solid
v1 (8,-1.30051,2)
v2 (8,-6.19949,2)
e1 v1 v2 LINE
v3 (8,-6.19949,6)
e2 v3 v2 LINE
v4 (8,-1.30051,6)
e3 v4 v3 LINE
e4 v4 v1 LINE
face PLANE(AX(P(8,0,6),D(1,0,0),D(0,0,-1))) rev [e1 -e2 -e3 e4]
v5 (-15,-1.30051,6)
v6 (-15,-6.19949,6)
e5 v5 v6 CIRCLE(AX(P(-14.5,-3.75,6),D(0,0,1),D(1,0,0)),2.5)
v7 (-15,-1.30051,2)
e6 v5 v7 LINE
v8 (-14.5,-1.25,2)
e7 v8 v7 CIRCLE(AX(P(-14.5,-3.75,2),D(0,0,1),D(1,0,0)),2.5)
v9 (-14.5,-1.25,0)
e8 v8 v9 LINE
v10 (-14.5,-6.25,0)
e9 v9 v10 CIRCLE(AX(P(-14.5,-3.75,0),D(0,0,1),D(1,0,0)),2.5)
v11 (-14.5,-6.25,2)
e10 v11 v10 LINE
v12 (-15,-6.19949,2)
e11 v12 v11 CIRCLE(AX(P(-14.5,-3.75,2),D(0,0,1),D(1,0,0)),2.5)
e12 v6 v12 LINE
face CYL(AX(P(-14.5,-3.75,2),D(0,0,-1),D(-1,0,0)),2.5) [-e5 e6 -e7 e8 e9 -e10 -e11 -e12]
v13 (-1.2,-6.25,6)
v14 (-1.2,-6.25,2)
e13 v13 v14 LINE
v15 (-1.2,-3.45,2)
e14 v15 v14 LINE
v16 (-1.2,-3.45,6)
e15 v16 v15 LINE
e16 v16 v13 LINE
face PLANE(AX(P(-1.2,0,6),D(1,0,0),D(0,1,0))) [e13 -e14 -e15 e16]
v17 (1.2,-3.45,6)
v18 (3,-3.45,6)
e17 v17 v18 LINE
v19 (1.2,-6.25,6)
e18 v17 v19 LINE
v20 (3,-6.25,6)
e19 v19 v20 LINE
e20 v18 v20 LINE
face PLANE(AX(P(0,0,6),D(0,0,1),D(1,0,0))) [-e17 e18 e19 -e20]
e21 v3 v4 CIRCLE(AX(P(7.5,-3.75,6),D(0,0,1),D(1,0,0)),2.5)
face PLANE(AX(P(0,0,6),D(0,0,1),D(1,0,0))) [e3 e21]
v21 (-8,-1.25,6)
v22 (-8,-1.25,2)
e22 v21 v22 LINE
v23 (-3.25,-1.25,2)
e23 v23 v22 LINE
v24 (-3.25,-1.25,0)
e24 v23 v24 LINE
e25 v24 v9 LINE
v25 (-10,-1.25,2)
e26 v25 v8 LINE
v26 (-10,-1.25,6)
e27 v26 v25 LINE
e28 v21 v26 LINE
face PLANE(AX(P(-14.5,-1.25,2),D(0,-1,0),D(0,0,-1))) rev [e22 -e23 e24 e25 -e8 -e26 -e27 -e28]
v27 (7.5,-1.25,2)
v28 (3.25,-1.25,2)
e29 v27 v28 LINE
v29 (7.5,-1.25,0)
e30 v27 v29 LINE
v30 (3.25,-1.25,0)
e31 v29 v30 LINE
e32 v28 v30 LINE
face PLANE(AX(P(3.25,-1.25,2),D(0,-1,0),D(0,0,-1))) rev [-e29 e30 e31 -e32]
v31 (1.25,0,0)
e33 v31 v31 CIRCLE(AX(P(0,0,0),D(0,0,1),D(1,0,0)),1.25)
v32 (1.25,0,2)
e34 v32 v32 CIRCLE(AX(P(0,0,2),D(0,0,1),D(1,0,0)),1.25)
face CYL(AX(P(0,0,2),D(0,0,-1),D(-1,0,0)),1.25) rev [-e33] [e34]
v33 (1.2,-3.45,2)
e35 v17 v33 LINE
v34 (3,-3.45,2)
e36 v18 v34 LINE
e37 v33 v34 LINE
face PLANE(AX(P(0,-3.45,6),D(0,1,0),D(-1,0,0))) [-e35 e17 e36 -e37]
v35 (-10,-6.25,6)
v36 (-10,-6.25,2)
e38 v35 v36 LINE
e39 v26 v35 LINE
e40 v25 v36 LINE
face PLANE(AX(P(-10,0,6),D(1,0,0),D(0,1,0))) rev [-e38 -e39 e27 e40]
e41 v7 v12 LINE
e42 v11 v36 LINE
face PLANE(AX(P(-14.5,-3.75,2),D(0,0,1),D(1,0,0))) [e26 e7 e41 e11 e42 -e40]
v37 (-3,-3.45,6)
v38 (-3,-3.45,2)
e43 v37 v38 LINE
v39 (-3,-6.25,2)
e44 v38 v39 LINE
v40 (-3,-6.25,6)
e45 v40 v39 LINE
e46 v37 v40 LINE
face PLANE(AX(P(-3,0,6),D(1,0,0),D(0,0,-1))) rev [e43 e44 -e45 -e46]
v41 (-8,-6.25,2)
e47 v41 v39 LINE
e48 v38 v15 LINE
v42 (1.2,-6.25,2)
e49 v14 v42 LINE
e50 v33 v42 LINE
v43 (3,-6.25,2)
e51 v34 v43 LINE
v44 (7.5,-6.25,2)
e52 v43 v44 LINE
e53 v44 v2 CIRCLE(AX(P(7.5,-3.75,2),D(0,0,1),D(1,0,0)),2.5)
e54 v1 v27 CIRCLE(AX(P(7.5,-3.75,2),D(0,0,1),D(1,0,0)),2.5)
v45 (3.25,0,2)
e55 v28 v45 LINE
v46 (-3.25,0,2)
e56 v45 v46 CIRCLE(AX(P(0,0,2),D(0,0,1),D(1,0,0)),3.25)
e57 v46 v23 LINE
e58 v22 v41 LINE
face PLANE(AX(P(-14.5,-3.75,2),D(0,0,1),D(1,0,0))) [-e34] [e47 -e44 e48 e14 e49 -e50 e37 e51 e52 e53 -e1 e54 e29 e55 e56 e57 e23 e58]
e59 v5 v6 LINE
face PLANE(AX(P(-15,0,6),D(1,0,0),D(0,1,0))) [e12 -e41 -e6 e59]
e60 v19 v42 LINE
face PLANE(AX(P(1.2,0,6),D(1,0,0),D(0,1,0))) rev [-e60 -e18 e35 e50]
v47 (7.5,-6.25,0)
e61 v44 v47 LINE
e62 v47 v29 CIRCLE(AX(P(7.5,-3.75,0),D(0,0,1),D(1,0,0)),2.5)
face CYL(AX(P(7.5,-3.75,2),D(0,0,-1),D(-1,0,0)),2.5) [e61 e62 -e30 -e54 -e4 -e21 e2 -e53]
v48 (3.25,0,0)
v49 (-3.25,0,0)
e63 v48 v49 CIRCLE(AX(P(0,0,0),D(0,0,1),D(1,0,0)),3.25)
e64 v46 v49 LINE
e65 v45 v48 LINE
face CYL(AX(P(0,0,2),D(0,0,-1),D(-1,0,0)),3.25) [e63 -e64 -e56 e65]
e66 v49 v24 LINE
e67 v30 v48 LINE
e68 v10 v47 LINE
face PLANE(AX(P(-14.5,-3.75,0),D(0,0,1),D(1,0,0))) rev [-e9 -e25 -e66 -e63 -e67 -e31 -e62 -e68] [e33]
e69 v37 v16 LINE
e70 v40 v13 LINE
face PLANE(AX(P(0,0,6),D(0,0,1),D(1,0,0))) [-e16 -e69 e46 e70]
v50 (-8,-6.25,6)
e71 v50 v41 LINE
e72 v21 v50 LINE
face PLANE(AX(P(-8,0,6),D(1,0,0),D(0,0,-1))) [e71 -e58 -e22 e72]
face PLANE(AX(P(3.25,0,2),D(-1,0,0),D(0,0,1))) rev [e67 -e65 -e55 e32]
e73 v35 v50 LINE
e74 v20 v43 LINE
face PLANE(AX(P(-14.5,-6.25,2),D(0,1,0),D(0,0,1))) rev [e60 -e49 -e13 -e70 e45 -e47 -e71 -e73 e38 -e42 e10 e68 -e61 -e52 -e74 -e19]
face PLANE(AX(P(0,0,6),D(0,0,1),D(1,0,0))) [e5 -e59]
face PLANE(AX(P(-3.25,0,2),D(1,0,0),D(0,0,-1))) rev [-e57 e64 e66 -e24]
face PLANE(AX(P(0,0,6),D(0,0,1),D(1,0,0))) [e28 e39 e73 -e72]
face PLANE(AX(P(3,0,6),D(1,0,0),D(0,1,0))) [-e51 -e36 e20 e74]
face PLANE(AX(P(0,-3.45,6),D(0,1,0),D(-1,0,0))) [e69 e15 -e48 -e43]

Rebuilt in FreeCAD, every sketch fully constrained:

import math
import FreeCAD as App
import Part
import Sketcher
from FreeCAD import Vector

doc = App.newDocument("Part")
body = doc.addObject("PartDesign::Body", "Body")

sketch1 = doc.addObject("Sketcher::SketchObject", "Sketch")
body.addObject(sketch1)
sketch1.AttachmentSupport = (doc.XY_Plane, [""])
sketch1.MapMode = "FlatFace"
sketch1.addGeometry([
    Part.LineSegment(Vector(-3.2, -1.2, 0), Vector(-14.5, -1.2, 0)),
    Part.ArcOfCircle(Part.Circle(Vector(-14.5, -3.8, 0), Vector(0, 0, 1), 2.5), math.radians(90), math.radians(270)),
    Part.LineSegment(Vector(-14.5, -6.2, 0), Vector(7.5, -6.2, 0)),
    Part.ArcOfCircle(Part.Circle(Vector(7.5, -3.8, 0), Vector(0, 0, 1), 2.5), math.radians(-90), math.radians(90)),
    Part.LineSegment(Vector(7.5, -1.2, 0), Vector(3.2, -1.2, 0)),
    Part.LineSegment(Vector(3.2, -1.2, 0), Vector(3.2, 0, 0)),
    Part.ArcOfCircle(Part.Circle(Vector(0, 0, 0), Vector(0, 0, 1), 3.2), math.radians(0), math.radians(180)),
    Part.LineSegment(Vector(-3.2, 0, 0), Vector(-3.2, -1.2, 0)),
    Part.Circle(Vector(0, 0, 0), Vector(0, 0, 1), 1.2),
], False)
sketch1.addConstraint([
    Sketcher.Constraint("Tangent", 0, 2, 1, 1),
    Sketcher.Constraint("Tangent", 1, 2, 2, 1),
    Sketcher.Constraint("Tangent", 2, 2, 3, 1),
    Sketcher.Constraint("Tangent", 3, 2, 4, 1),
    Sketcher.Constraint("Coincident", 4, 2, 5, 1),
    Sketcher.Constraint("Tangent", 5, 2, 6, 1),
    Sketcher.Constraint("Tangent", 6, 2, 7, 1),
    Sketcher.Constraint("Coincident", 7, 2, 0, 1),
    Sketcher.Constraint("Horizontal", 0),
    Sketcher.Constraint("Horizontal", 2),
    Sketcher.Constraint("Horizontal", 4),
    Sketcher.Constraint("Vertical", 5),
    Sketcher.Constraint("Vertical", 7),
    Sketcher.Constraint("Coincident", 6, 3, -1, 1),
    Sketcher.Constraint("Coincident", 8, 3, -1, 1),
    Sketcher.Constraint("Equal", 1, 3),
    Sketcher.Constraint("Diameter", 8, 2.5),
    Sketcher.Constraint("Radius", 1, 2.5),
    Sketcher.Constraint("DistanceX", 2, 1, 2, 2, 22.0),
    Sketcher.Constraint("Radius", 6, 3.25),
    Sketcher.Constraint("DistanceX", 0, 2, 0, 1, 11.25),
    Sketcher.Constraint("DistanceY", 5, 1, 5, 2, 1.25),
])
pad1 = doc.addObject("PartDesign::Pad", "Pad")
body.addObject(pad1)
pad1.Profile = sketch1
pad1.Length = 2

sketch2 = doc.addObject("Sketcher::SketchObject", "Sketch001")
body.addObject(sketch2)
sketch2.AttachmentSupport = (doc.XY_Plane, [""])
sketch2.MapMode = "FlatFace"
sketch2.AttachmentOffset = App.Placement(Vector(0, 0, 2), App.Rotation())
sketch2.addGeometry([
    Part.LineSegment(Vector(-3, -3.5, 0), Vector(-3, -6.2, 0)),
    Part.LineSegment(Vector(-3, -6.2, 0), Vector(-1.2, -6.2, 0)),
    Part.LineSegment(Vector(-1.2, -6.2, 0), Vector(-1.2, -3.5, 0)),
    Part.LineSegment(Vector(-1.2, -3.5, 0), Vector(-3, -3.5, 0)),
    Part.LineSegment(Vector(1.2, -3.5, 0), Vector(1.2, -6.2, 0)),
    Part.LineSegment(Vector(1.2, -6.2, 0), Vector(3, -6.2, 0)),
    Part.LineSegment(Vector(3, -6.2, 0), Vector(3, -3.5, 0)),
    Part.LineSegment(Vector(3, -3.5, 0), Vector(1.2, -3.5, 0)),
    Part.LineSegment(Vector(-10, -1.2, 0), Vector(-10, -6.2, 0)),
    Part.LineSegment(Vector(-10, -6.2, 0), Vector(-8, -6.2, 0)),
    Part.LineSegment(Vector(-8, -6.2, 0), Vector(-8, -1.2, 0)),
    Part.LineSegment(Vector(-8, -1.2, 0), Vector(-10, -1.2, 0)),
    Part.ArcOfCircle(Part.Circle(Vector(7.5, -3.8, 0), Vector(0, 0, 1), 2.5), math.radians(-78), math.radians(78)),
    Part.LineSegment(Vector(8, -1.3, 0), Vector(8, -6.2, 0)),
    Part.LineSegment(Vector(-15, -6.2, 0), Vector(-15, -1.3, 0)),
    Part.ArcOfCircle(Part.Circle(Vector(-14.5, -3.8, 0), Vector(0, 0, 1), 2.5), math.radians(102), math.radians(258)),
], False)
sketch2.addConstraint([
    Sketcher.Constraint("Coincident", 0, 2, 1, 1),
    Sketcher.Constraint("Coincident", 1, 2, 2, 1),
    Sketcher.Constraint("Coincident", 2, 2, 3, 1),
    Sketcher.Constraint("Coincident", 3, 2, 0, 1),
    Sketcher.Constraint("Coincident", 4, 2, 5, 1),
    Sketcher.Constraint("Coincident", 5, 2, 6, 1),
    Sketcher.Constraint("Coincident", 6, 2, 7, 1),
    Sketcher.Constraint("Coincident", 7, 2, 4, 1),
    Sketcher.Constraint("Coincident", 8, 2, 9, 1),
    Sketcher.Constraint("Coincident", 9, 2, 10, 1),
    Sketcher.Constraint("Coincident", 10, 2, 11, 1),
    Sketcher.Constraint("Coincident", 11, 2, 8, 1),
    Sketcher.Constraint("Coincident", 12, 1, 13, 2),
    Sketcher.Constraint("Coincident", 13, 1, 12, 2),
    Sketcher.Constraint("Coincident", 14, 1, 15, 2),
    Sketcher.Constraint("Coincident", 15, 1, 14, 2),
    Sketcher.Constraint("Vertical", 0),
    Sketcher.Constraint("Horizontal", 1),
    Sketcher.Constraint("Vertical", 2),
    Sketcher.Constraint("Horizontal", 3),
    Sketcher.Constraint("Vertical", 4),
    Sketcher.Constraint("Horizontal", 5),
    Sketcher.Constraint("Vertical", 6),
    Sketcher.Constraint("Horizontal", 7),
    Sketcher.Constraint("Vertical", 8),
    Sketcher.Constraint("Horizontal", 9),
    Sketcher.Constraint("Vertical", 10),
    Sketcher.Constraint("Horizontal", 11),
    Sketcher.Constraint("Vertical", 13),
    Sketcher.Constraint("Vertical", 14),
    Sketcher.Constraint("Equal", 12, 15),
    Sketcher.Constraint("Symmetric", 1, 2, 4, 2, -2),
    Sketcher.Constraint("Symmetric", 3, 2, 6, 2, -2),
    Sketcher.Constraint("Horizontal", 12, 3, 15, 3),
    Sketcher.Constraint("Horizontal", 5, 2, 8, 2),
    Sketcher.Constraint("Horizontal", 12, 1, 14, 1),
    Sketcher.Constraint("Radius", 12, 2.5),
    Sketcher.Constraint("DistanceX", 9, 1, 9, 2, 2.0),
    Sketcher.Constraint("DistanceY", 8, 2, 8, 1, 5.0),
    Sketcher.Constraint("DistanceX", 1, 1, 1, 2, 1.8),
    Sketcher.Constraint("DistanceY", 0, 2, 0, 1, 2.8),
    Sketcher.Constraint("DistanceX", 0, 2, -1, 1, 3.0),
    Sketcher.Constraint("DistanceX", 8, 2, -1, 1, 10.0),
    Sketcher.Constraint("DistanceX", -1, 1, 12, 1, 8.0),
    Sketcher.Constraint("DistanceX", 14, 1, -1, 1, 15.0),
    Sketcher.Constraint("DistanceX", 15, 3, 12, 3, 22.0),
    Sketcher.Constraint("DistanceY", 0, 2, 12, 3, 2.5),
    Sketcher.Constraint("DistanceY", 12, 3, -1, 1, 3.75),
])
pad2 = doc.addObject("PartDesign::Pad", "Pad001")
body.addObject(pad2)
pad2.Profile = sketch2
pad2.Length = 4

doc.recompute()
